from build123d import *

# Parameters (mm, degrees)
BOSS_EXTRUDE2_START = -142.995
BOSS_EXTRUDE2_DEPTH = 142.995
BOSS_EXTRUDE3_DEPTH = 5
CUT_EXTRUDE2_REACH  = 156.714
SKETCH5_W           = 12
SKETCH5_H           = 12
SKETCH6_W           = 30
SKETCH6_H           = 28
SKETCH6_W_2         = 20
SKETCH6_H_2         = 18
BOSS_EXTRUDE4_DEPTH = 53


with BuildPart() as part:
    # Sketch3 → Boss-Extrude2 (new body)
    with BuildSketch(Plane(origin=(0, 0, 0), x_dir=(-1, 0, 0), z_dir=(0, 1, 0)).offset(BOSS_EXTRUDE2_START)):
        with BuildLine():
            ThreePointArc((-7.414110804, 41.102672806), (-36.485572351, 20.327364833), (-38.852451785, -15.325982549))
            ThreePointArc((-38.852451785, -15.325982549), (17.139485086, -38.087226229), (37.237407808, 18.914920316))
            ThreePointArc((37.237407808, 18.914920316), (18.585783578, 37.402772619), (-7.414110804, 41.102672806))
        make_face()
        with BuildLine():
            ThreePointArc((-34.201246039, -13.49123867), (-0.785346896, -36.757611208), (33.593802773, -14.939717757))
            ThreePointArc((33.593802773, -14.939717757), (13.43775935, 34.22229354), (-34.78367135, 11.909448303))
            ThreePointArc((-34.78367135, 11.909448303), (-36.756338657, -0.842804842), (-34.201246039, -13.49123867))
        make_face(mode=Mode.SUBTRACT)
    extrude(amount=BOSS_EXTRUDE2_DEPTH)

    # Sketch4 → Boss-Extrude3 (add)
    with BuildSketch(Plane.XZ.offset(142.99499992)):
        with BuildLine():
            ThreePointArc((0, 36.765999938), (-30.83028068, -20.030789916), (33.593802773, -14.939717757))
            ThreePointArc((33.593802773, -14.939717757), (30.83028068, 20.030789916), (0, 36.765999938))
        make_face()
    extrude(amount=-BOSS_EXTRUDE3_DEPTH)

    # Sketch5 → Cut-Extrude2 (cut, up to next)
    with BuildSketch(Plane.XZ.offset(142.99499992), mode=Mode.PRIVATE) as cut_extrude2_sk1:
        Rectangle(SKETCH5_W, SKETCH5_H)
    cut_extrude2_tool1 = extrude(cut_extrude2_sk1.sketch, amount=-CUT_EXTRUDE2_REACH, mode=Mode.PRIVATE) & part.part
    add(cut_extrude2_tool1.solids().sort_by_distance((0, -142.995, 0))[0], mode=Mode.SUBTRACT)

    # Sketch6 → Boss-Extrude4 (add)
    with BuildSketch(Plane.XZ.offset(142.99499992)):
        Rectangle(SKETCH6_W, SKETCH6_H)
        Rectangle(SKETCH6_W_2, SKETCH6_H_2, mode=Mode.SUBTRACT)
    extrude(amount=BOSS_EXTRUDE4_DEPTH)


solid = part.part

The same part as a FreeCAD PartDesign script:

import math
import FreeCAD as App
import Part
import Sketcher


def add_polygon(sketch, points):
    """Adds a closed chain of lines whose ends are joined by coincident constraints."""
    first, n = sketch.GeometryCount, len(points)
    for a, b in zip(points, points[1:] + points[:1]):
        sketch.addGeometry(Part.LineSegment(App.Vector(*a, 0), App.Vector(*b, 0)), False)
    for i in range(n):
        sketch.addConstraint(Sketcher.Constraint("Coincident", first + i, 2, first + (i + 1) % n, 1))

doc = App.newDocument("Part")
body = doc.addObject("PartDesign::Body", "Body")

# Sketch on XZ plane
sketch1 = body.newObject("Sketcher::SketchObject", "Sketch")
sketch1.AttachmentSupport = (doc.getObject("XZ_Plane"), [""])
sketch1.MapMode = "FlatFace"
sketch1.AttachmentOffset = App.Placement(App.Vector(0, 0, 142.995), App.Rotation())
sketch1.addGeometry(Part.ArcOfCircle(Part.Circle(App.Vector(0, 0, 0), App.Vector(0, 0, 1), 41.766), math.radians(-21.527563), math.radians(79.774924)), False)
sketch1.addGeometry(Part.ArcOfCircle(Part.Circle(App.Vector(0, 0, 0), App.Vector(0, 0, 1), 41.766), math.radians(153.071489), math.radians(338.472437)), False)
sketch1.addGeometry(Part.ArcOfCircle(Part.Circle(App.Vector(0, 0, 0), App.Vector(0, 0, 1), 41.766), math.radians(79.774924), math.radians(153.071489)), False)
sketch1.addGeometry(Part.ArcOfCircle(Part.Circle(App.Vector(0, 0, 0), App.Vector(0, 0, 1), 36.766), math.radians(-156.024497), math.radians(-21.527563)), False)
sketch1.addGeometry(Part.ArcOfCircle(Part.Circle(App.Vector(0, 0, 0), App.Vector(0, 0, 1), 36.766), math.radians(-21.527563), math.radians(18.900495)), False)
sketch1.addGeometry(Part.ArcOfCircle(Part.Circle(App.Vector(0, 0, 0), App.Vector(0, 0, 1), 36.766), math.radians(18.900495), math.radians(203.975503)), False)
sketch1.addConstraint(Sketcher.Constraint("Tangent", 0, 1, 1, 2))
sketch1.addConstraint(Sketcher.Constraint("Tangent", 1, 1, 2, 2))
sketch1.addConstraint(Sketcher.Constraint("Tangent", 2, 1, 0, 2))
sketch1.addConstraint(Sketcher.Constraint("Tangent", 3, 2, 4, 1))
sketch1.addConstraint(Sketcher.Constraint("Tangent", 4, 2, 5, 1))
sketch1.addConstraint(Sketcher.Constraint("Tangent", 5, 2, 3, 1))
sketch1.addConstraint(Sketcher.Constraint("Coincident", 0, 3, -1, 1))
sketch1.addConstraint(Sketcher.Constraint("Coincident", 3, 3, -1, 1))
sketch1.addConstraint(Sketcher.Constraint("Radius", 0, 41.766))
sketch1.addConstraint(Sketcher.Constraint("Radius", 3, 36.766))
sketch1.addConstraint(Sketcher.Constraint("DistanceX", -1, 1, 0, 1, 38.852452))
sketch1.addConstraint(Sketcher.Constraint("DistanceY", -1, 1, 1, 1, 18.91492))
sketch1.addConstraint(Sketcher.Constraint("DistanceX", -1, 1, 2, 1, 7.414111))
sketch1.addConstraint(Sketcher.Constraint("DistanceY", 3, 2, -1, 1, 13.491239))
sketch1.addConstraint(Sketcher.Constraint("DistanceX", -1, 1, 4, 2, 34.783671))
sketch1.addConstraint(Sketcher.Constraint("DistanceY", 5, 2, 1, 1, 33.854638))
pad1 = body.newObject("PartDesign::Pad", "Pad")
pad1.Profile = sketch1
pad1.Length = 142.995
pad1.Reversed = True

# Sketch on XZ plane
sketch2 = body.newObject("Sketcher::SketchObject", "Sketch001")
sketch2.AttachmentSupport = (doc.getObject("XZ_Plane"), [""])
sketch2.MapMode = "FlatFace"
sketch2.AttachmentOffset = App.Placement(App.Vector(0, 0, 142.995), App.Rotation())
sketch2.addGeometry(Part.ArcOfCircle(Part.Circle(App.Vector(0, 0, 0), App.Vector(0, 0, 1), 36.766), math.radians(90), math.radians(336.024497)), False)
sketch2.addGeometry(Part.ArcOfCircle(Part.Circle(App.Vector(0, 0, 0), App.Vector(0, 0, 1), 36.766), math.radians(-23.975503), math.radians(90)), False)
sketch2.addConstraint(Sketcher.Constraint("Tangent", 0, 1, 1, 2))
sketch2.addConstraint(Sketcher.Constraint("Coincident", 1, 1, 0, 2))
sketch2.addConstraint(Sketcher.Constraint("Coincident", 0, 3, -1, 1))
sketch2.addConstraint(Sketcher.Constraint("PointOnObject", 0, 1, -2))
sketch2.addConstraint(Sketcher.Constraint("Radius", 0, 36.766))
sketch2.addConstraint(Sketcher.Constraint("DistanceX", -1, 1, 1, 1, 33.593803))
pad2 = body.newObject("PartDesign::Pad", "Pad001")
pad2.Profile = sketch2
pad2.Length = 5
pad2.Reversed = True

# Sketch on XZ plane
sketch3 = body.newObject("Sketcher::SketchObject", "Sketch002")
sketch3.AttachmentSupport = (doc.getObject("XZ_Plane"), [""])
sketch3.MapMode = "FlatFace"
sketch3.AttachmentOffset = App.Placement(App.Vector(0, 0, 142.995), App.Rotation())
add_polygon(sketch3, [(-6, 6), (-6, -6), (6, -6), (6, 6)])  # lines 0-3
sketch3.addConstraint(Sketcher.Constraint("Vertical", 0))
sketch3.addConstraint(Sketcher.Constraint("Horizontal", 1))
sketch3.addConstraint(Sketcher.Constraint("Vertical", 2))
sketch3.addConstraint(Sketcher.Constraint("Horizontal", 3))
sketch3.addConstraint(Sketcher.Constraint("Symmetric", 0, 2, 2, 2, -1, 1))
sketch3.addConstraint(Sketcher.Constraint("Equal", 3, 0))
sketch3.addConstraint(Sketcher.Constraint("DistanceX", 1, 1, 1, 2, 12.0))
pocket1 = body.newObject("PartDesign::Pocket", "Pocket")
pocket1.Profile = sketch3
pocket1.Type = "UpToFirst"

# Sketch on XZ plane
sketch4 = body.newObject("Sketcher::SketchObject", "Sketch003")
sketch4.AttachmentSupport = (doc.getObject("XZ_Plane"), [""])
sketch4.MapMode = "FlatFace"
sketch4.AttachmentOffset = App.Placement(App.Vector(0, 0, 142.995), App.Rotation())
add_polygon(sketch4, [(-15, 14), (-15, -14), (15, -14), (15, 14)])  # lines 0-3
add_polygon(sketch4, [(10, -9), (-10, -9), (-10, 9), (10, 9)])  # lines 4-7
sketch4.addConstraint(Sketcher.Constraint("Vertical", 0))
sketch4.addConstraint(Sketcher.Constraint("Horizontal", 1))
sketch4.addConstraint(Sketcher.Constraint("Vertical", 2))
sketch4.addConstraint(Sketcher.Constraint("Horizontal", 3))
sketch4.addConstraint(Sketcher.Constraint("Horizontal", 4))
sketch4.addConstraint(Sketcher.Constraint("Vertical", 5))
sketch4.addConstraint(Sketcher.Constraint("Horizontal", 6))
sketch4.addConstraint(Sketcher.Constraint("Vertical", 7))
sketch4.addConstraint(Sketcher.Constraint("Symmetric", 0, 2, 2, 2, -1, 1))
sketch4.addConstraint(Sketcher.Constraint("Symmetric", 4, 2, 6, 2, -1, 1))
sketch4.addConstraint(Sketcher.Constraint("DistanceX", 1, 1, 1, 2, 30.0))
sketch4.addConstraint(Sketcher.Constraint("DistanceX", 4, 2, 4, 1, 20.0))
sketch4.addConstraint(Sketcher.Constraint("DistanceY", 0, 2, 0, 1, 28.0))
sketch4.addConstraint(Sketcher.Constraint("DistanceY", 5, 1, 5, 2, 18.0))
pad3 = body.newObject("PartDesign::Pad", "Pad002")
pad3.Profile = sketch4
pad3.Length = 53

doc.recompute()
